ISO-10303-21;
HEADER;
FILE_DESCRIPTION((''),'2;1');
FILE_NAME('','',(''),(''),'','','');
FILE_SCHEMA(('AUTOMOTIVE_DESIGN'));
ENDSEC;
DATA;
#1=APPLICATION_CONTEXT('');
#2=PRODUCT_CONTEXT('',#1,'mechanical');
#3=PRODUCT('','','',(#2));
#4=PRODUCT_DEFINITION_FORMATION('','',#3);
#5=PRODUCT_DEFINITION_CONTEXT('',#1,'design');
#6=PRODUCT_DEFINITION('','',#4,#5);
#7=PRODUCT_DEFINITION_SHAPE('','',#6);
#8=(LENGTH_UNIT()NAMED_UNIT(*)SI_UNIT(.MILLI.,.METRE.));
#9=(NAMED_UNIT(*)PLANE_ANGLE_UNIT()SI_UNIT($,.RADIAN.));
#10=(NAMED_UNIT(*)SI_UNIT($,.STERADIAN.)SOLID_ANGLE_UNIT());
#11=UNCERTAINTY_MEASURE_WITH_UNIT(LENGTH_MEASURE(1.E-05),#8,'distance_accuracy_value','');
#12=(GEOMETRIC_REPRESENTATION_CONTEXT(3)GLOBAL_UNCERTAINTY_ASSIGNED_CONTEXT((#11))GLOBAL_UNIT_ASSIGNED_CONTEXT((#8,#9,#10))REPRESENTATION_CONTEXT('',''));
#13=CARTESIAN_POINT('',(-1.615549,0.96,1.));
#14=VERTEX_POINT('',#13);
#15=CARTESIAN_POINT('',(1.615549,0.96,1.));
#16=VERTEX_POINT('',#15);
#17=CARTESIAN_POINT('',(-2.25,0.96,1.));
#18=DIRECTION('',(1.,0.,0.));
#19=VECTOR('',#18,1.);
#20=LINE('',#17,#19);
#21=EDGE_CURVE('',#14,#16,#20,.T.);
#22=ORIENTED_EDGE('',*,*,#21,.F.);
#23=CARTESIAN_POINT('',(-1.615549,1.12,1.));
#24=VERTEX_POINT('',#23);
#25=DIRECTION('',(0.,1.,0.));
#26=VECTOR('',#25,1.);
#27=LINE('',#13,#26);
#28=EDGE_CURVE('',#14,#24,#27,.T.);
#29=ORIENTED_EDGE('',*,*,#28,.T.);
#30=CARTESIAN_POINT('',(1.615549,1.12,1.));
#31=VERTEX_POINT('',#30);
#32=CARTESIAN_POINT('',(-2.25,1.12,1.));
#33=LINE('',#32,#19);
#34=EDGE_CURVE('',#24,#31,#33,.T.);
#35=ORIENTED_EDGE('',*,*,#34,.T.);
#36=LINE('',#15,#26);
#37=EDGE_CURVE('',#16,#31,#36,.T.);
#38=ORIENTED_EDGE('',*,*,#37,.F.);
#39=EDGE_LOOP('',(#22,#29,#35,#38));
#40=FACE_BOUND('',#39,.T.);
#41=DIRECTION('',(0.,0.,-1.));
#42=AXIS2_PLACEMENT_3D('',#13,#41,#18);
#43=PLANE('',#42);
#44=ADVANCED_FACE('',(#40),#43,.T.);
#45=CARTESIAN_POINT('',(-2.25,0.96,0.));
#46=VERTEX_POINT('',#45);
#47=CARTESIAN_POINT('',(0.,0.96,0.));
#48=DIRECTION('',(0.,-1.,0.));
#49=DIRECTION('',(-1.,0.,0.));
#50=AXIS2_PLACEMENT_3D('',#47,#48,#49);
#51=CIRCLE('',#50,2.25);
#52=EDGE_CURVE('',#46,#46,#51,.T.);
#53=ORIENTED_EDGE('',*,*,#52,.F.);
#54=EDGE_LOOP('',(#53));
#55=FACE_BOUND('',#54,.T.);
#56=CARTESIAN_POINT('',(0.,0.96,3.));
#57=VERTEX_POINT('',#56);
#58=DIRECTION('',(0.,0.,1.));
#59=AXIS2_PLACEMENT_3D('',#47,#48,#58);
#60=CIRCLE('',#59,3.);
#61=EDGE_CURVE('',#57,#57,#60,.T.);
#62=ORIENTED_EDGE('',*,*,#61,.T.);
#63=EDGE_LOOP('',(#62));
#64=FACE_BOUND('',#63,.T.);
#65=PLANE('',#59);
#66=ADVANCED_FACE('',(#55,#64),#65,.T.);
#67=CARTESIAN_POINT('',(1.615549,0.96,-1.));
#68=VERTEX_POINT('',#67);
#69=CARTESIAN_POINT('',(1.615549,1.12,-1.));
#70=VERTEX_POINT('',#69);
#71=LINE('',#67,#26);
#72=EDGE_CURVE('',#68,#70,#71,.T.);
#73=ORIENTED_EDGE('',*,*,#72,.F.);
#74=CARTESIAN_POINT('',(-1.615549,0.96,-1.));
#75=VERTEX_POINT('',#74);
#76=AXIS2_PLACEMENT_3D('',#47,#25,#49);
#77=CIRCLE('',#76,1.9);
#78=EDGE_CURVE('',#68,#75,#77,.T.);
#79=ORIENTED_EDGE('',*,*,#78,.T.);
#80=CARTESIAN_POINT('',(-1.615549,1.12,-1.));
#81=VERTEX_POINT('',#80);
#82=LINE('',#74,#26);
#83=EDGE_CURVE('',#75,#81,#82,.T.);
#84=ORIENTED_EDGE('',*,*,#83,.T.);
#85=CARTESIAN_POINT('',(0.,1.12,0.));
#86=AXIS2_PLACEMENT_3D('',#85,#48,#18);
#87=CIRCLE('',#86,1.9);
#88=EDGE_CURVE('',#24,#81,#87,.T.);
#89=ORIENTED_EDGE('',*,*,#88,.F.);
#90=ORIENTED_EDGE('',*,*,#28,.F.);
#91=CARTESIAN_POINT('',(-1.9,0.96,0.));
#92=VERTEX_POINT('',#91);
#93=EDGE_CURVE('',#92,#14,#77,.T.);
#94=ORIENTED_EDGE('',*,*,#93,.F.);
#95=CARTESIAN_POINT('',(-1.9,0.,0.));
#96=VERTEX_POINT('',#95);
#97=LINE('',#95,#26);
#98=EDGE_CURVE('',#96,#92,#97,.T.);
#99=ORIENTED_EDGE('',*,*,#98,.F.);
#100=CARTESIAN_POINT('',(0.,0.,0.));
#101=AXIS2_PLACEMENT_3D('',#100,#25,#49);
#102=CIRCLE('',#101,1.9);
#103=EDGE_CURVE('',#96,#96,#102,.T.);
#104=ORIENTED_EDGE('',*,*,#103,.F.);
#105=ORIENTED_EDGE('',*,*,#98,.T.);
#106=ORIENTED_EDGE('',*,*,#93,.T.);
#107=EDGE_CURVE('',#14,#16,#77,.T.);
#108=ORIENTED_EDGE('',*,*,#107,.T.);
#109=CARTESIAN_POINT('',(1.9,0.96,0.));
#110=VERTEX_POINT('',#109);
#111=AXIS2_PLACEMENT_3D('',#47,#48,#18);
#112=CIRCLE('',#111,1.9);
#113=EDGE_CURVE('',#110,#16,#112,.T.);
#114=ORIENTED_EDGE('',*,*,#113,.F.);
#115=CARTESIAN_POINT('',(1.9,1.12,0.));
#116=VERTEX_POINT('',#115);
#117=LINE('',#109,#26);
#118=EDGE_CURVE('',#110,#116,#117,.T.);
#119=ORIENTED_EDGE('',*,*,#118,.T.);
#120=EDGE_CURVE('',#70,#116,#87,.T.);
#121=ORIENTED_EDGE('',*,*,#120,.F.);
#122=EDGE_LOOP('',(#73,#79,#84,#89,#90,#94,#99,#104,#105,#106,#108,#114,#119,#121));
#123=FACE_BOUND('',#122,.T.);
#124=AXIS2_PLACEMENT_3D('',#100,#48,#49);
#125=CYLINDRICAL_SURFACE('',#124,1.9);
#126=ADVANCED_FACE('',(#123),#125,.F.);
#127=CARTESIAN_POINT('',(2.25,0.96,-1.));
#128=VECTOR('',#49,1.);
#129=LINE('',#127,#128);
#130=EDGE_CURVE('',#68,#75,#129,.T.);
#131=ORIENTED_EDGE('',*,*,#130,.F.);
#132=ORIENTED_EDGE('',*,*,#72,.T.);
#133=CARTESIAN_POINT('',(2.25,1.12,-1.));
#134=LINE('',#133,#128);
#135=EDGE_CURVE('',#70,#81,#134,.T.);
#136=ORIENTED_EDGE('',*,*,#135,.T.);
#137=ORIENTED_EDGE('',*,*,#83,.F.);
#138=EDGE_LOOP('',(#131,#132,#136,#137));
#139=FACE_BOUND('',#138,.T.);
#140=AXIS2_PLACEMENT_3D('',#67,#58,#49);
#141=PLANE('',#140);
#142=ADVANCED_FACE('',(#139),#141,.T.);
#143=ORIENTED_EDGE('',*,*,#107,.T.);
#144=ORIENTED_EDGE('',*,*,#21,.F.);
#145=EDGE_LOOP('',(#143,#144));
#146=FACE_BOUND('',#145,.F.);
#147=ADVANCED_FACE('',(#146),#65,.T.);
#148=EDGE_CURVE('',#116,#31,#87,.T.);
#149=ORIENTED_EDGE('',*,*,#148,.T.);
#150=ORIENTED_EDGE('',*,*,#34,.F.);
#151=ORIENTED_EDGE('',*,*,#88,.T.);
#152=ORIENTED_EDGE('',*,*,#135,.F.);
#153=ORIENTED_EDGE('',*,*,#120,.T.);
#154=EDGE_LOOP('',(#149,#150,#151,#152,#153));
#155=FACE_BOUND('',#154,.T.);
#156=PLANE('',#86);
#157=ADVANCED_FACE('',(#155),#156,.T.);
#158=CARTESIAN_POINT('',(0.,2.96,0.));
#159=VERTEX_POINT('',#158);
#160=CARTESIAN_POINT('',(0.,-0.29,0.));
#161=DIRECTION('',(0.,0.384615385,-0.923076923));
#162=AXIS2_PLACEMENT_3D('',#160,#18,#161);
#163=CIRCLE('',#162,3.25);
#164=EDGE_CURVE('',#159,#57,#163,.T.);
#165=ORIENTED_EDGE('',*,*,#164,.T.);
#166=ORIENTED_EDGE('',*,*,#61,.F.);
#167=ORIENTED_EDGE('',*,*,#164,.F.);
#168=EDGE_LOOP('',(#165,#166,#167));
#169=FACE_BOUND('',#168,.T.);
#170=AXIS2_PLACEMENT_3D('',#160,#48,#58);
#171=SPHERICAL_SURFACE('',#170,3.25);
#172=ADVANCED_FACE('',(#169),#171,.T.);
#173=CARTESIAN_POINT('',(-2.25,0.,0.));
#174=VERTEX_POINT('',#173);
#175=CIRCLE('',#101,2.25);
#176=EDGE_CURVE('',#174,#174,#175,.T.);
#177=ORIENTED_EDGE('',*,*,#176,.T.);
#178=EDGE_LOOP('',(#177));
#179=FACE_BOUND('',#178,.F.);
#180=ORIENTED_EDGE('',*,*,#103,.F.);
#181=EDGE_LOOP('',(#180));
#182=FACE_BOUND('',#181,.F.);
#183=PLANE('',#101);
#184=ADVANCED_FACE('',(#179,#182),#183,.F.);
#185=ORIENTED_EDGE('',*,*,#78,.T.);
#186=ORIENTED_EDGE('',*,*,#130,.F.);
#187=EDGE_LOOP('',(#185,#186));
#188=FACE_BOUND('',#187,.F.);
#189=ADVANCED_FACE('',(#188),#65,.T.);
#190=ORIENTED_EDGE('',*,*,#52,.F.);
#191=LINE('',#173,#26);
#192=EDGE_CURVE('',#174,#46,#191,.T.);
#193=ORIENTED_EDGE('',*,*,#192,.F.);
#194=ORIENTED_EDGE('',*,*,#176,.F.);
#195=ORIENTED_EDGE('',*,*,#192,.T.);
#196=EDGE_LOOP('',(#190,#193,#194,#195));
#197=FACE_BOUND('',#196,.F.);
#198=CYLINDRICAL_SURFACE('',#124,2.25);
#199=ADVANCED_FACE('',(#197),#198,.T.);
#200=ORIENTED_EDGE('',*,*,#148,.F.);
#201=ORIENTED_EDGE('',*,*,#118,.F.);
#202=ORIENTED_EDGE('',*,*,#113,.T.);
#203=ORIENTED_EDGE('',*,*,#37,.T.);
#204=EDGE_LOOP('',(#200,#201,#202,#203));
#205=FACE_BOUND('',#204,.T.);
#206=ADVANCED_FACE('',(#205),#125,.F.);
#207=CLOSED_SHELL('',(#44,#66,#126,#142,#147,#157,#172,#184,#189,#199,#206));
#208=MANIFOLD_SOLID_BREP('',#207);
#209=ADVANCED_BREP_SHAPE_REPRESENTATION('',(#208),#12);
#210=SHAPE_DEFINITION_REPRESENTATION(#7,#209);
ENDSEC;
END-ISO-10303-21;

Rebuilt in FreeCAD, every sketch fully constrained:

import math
import FreeCAD as App
import Part
import Sketcher

V = App.Vector
Q = App.Units.Quantity

doc = App.newDocument("Part")
body = doc.addObject("PartDesign::Body", "Body")

# Sketch on XZ plane
sketch1 = body.newObject("Sketcher::SketchObject", "Sketch")
sketch1.AttachmentSupport = (doc.getObject("XZ_Plane"), [""])
sketch1.MapMode = "FlatFace"
sketch1.addGeometry([
    Part.Circle(V(0, 0, 0), V(0, 0, 1), 2.25),
    Part.Circle(V(0, 0, 0), V(0, 0, 1), 1.9),
], False)
sketch1.addConstraint([
    Sketcher.Constraint("Coincident", 0, 3, -1, 1),
    Sketcher.Constraint("Coincident", 1, 3, -1, 1),
    Sketcher.Constraint("Diameter", 0, Q("4.5 mm")),
    Sketcher.Constraint("Diameter", 1, Q("3.8 mm")),
])
pad1 = body.newObject("PartDesign::Pad", "Pad")
pad1.Profile = sketch1
pad1.Length = 0.96
pad1.Reversed = True

# Sketch on YZ plane
sketch2 = body.newObject("Sketcher::SketchObject", "Sketch001")
sketch2.AttachmentSupport = (doc.getObject("YZ_Plane"), [""])
sketch2.MapMode = "FlatFace"
sketch2.addGeometry([
    Part.LineSegment(V(0.96, 0, 0), V(2.96, 0, 0)),
    Part.ArcOfCircle(Part.Circle(V(-0.29, 0, 0), V(0, 0, 1), 3.25), math.radians(0), math.radians(67.380135)),
    Part.LineSegment(V(0.96, 3, 0), V(0.96, 0, 0)),
], False)
sketch2.addConstraint([
    Sketcher.Constraint("Coincident", 0, 2, 1, 1),
    Sketcher.Constraint("Coincident", 1, 2, 2, 1),
    Sketcher.Constraint("Coincident", 2, 2, 0, 1),
    Sketcher.Constraint("Horizontal", 0),
    Sketcher.Constraint("Vertical", 2),
    Sketcher.Constraint("PointOnObject", 1, 3, -1),
    Sketcher.Constraint("PointOnObject", 0, 2, -1),
    Sketcher.Constraint("DistanceX", 0, 1, 0, 2, Q("2 mm")),
    Sketcher.Constraint("DistanceY", 2, 2, 2, 1, Q("3 mm")),
    Sketcher.Constraint("DistanceX", 1, 3, -1, 1, Q("0.29 mm")),
])
revolution = body.newObject("PartDesign::Revolution", "Revolution")
revolution.Profile = sketch2
revolution.ReferenceAxis = (sketch2, ["H_Axis"])
revolution.Angle = 360

# Sketch on XZ plane
sketch3 = body.newObject("Sketcher::SketchObject", "Sketch002")
sketch3.AttachmentSupport = (doc.getObject("XZ_Plane"), [""])
sketch3.MapMode = "FlatFace"
sketch3.AttachmentOffset = App.Placement(V(0, 0, -0.96), App.Rotation())
sketch3.addGeometry([
    Part.LineSegment(V(1.615549, 1, 0), V(-1.615549, 1, 0)),
    Part.ArcOfCircle(Part.Circle(V(0, 0, 0), V(0, 0, 1), 1.9), math.radians(148.243136), math.radians(211.756864)),
    Part.LineSegment(V(-1.615549, -1, 0), V(1.615549, -1, 0)),
    Part.ArcOfCircle(Part.Circle(V(0, 0, 0), V(0, 0, 1), 1.9), math.radians(-31.756864), math.radians(31.756864)),
], False)
sketch3.addConstraint([
    Sketcher.Constraint("Coincident", 0, 2, 1, 1),
    Sketcher.Constraint("Coincident", 1, 2, 2, 1),
    Sketcher.Constraint("Coincident", 2, 2, 3, 1),
    Sketcher.Constraint("Coincident", 3, 2, 0, 1),
    Sketcher.Constraint("Horizontal", 0),
    Sketcher.Constraint("Horizontal", 2),
    Sketcher.Constraint("Coincident", 1, 3, -1, 1),
    Sketcher.Constraint("Coincident", 3, 3, -1, 1),
    Sketcher.Constraint("Equal", 1, 3),
    Sketcher.Constraint("Vertical", 0, 2, 1, 2),
    Sketcher.Constraint("DistanceY", 1, 2, 0, 2, Q("2 mm")),
    Sketcher.Constraint("Radius", 1, Q("1.9 mm")),
])
pocket1 = body.newObject("PartDesign::Pocket", "Pocket")
pocket1.Profile = sketch3
pocket1.Length = 0.16

doc.recompute()
